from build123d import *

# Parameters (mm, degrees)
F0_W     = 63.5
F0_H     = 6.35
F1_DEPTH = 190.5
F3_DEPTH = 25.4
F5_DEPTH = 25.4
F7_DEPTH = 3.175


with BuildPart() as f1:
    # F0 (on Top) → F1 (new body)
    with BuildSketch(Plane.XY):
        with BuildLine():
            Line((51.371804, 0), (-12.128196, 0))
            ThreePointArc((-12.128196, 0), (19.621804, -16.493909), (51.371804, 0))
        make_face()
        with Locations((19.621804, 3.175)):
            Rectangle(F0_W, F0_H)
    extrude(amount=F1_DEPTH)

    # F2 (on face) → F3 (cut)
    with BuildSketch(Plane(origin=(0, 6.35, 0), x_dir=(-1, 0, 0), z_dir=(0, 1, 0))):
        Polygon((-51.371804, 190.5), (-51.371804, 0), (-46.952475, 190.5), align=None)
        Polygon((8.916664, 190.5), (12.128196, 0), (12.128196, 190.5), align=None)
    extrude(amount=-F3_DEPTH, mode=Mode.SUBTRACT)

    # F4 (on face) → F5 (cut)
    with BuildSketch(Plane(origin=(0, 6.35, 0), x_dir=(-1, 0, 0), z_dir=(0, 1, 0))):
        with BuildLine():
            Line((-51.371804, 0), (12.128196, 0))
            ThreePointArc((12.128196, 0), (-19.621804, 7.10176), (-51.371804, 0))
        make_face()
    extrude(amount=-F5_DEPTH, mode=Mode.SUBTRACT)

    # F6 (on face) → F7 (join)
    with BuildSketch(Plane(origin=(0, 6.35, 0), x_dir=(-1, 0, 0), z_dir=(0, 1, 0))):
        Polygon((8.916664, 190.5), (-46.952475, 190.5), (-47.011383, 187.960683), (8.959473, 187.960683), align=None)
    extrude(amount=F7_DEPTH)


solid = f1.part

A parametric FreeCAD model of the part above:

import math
import FreeCAD as App
import Part
import Sketcher

V = App.Vector
Q = App.Units.Quantity


def add_polygon(sketch, points):
    """Adds a closed chain of lines whose ends are joined by coincident constraints."""
    first, n = sketch.GeometryCount, len(points)
    for a, b in zip(points, points[1:] + points[:1]):
        sketch.addGeometry(Part.LineSegment(App.Vector(*a, 0), App.Vector(*b, 0)), False)
    for i in range(n):
        sketch.addConstraint(Sketcher.Constraint("Coincident", first + i, 2, first + (i + 1) % n, 1))

doc = App.newDocument("Part")
body = doc.addObject("PartDesign::Body", "Body")

# Sketch on XY plane
sketch1 = body.newObject("Sketcher::SketchObject", "Sketch")
sketch1.AttachmentSupport = (doc.getObject("XY_Plane"), [""])
sketch1.MapMode = "FlatFace"
sketch1.addGeometry([
    Part.ArcOfCircle(Part.Circle(V(20, 22, 0), V(0, 0, 1), 39), math.radians(-145), math.radians(-35)),
    Part.LineSegment(V(51, 0, 0), V(51, 6, 0)),
    Part.LineSegment(V(51, 6, 0), V(-12, 6, 0)),
    Part.LineSegment(V(-12, 6, 0), V(-12, 0, 0)),
], False)
sketch1.addConstraint([
    Sketcher.Constraint("Coincident", 0, 2, 1, 1),
    Sketcher.Constraint("Coincident", 1, 2, 2, 1),
    Sketcher.Constraint("Coincident", 2, 2, 3, 1),
    Sketcher.Constraint("Coincident", 3, 2, 0, 1),
    Sketcher.Constraint("Vertical", 1),
    Sketcher.Constraint("Horizontal", 2),
    Sketcher.Constraint("Vertical", 3),
    Sketcher.Constraint("PointOnObject", 0, 2, -1),
    Sketcher.Constraint("PointOnObject", 3, 2, -1),
    Sketcher.Constraint("DistanceX", 2, 2, 2, 1, Q("2.5 in")),
    Sketcher.Constraint("DistanceY", 1, 1, 1, 2, Q("0.25 in")),
    Sketcher.Constraint("Radius", 0, 38.805584),
    Sketcher.Constraint("DistanceX", -1, 1, 0, 3, 19.621804),
])
pad1 = body.newObject("PartDesign::Pad", "Pad")
pad1.Profile = sketch1
pad1.Length = Q("7.5 in")

# Sketch on XZ plane
sketch2 = body.newObject("Sketcher::SketchObject", "Sketch001")
sketch2.AttachmentSupport = (doc.getObject("XZ_Plane"), [""])
sketch2.MapMode = "FlatFace"
sketch2.AttachmentOffset = App.Placement(V(0, 0, -0.25 * 25.4), App.Rotation())
add_polygon(sketch2, [(51.4, 190.5), (51.4, 0), (47, 190.5)])  # lines 0-2
add_polygon(sketch2, [(-8.9, 190.5), (-12.1, 0), (-12.1, 190.5)])  # lines 3-5
sketch2.addConstraint([
    Sketcher.Constraint("Vertical", 0),
    Sketcher.Constraint("Horizontal", 2),
    Sketcher.Constraint("Vertical", 4),
    Sketcher.Constraint("Horizontal", 5),
    Sketcher.Constraint("PointOnObject", 0, 2, -1),
    Sketcher.Constraint("PointOnObject", 3, 2, -1),
    Sketcher.Constraint("Horizontal", 2, 2, 4, 2),
    Sketcher.Constraint("DistanceY", 0, 2, 0, 1, Q("7.5 in")),
    Sketcher.Constraint("DistanceX", 3, 2, 0, 2, Q("2.5 in")),
    Sketcher.Constraint("DistanceX", 2, 1, 2, 2, 4.419329),
    Sketcher.Constraint("DistanceX", 5, 1, 5, 2, 3.211532),
    Sketcher.Constraint("DistanceX", -1, 1, 0, 2, 51.371804),
])
pocket1 = body.newObject("PartDesign::Pocket", "Pocket")
pocket1.Profile = sketch2
pocket1.Length = Q("1 in")
pocket1.Reversed = True

# Sketch on XZ plane
sketch3 = body.newObject("Sketcher::SketchObject", "Sketch002")
sketch3.AttachmentSupport = (doc.getObject("XZ_Plane"), [""])
sketch3.MapMode = "FlatFace"
sketch3.AttachmentOffset = App.Placement(V(0, 0, -0.25 * 25.4), App.Rotation())
sketch3.addGeometry([
    Part.LineSegment(V(51, 0, 0), V(-12, 0, 0)),
    Part.ArcOfCircle(Part.Circle(V(20, -67, 0), V(0, 0, 1), 75), math.radians(65), math.radians(115)),
], False)
sketch3.addConstraint([
    Sketcher.Constraint("Coincident", 0, 1, 1, 1),
    Sketcher.Constraint("Coincident", 1, 2, 0, 2),
    Sketcher.Constraint("Horizontal", 0),
    Sketcher.Constraint("PointOnObject", 0, 1, -1),
    Sketcher.Constraint("DistanceX", 0, 2, 0, 1, Q("2.5 in")),
    Sketcher.Constraint("Radius", 1, Q("2.9340001 in")),
    Sketcher.Constraint("DistanceX", -1, 1, 1, 3, 19.621804),
])
pocket2 = body.newObject("PartDesign::Pocket", "Pocket001")
pocket2.Profile = sketch3
pocket2.Length = Q("1 in")
pocket2.Reversed = True

# Sketch on XZ plane
sketch4 = body.newObject("Sketcher::SketchObject", "Sketch003")
sketch4.AttachmentSupport = (doc.getObject("XZ_Plane"), [""])
sketch4.MapMode = "FlatFace"
sketch4.AttachmentOffset = App.Placement(V(0, 0, -0.25 * 25.4), App.Rotation())
add_polygon(sketch4, [(-8.9, 190.5), (47, 190.5), (47, 188), (-9, 188)])  # lines 0-3
sketch4.addConstraint([
    Sketcher.Constraint("Horizontal", 0),
    Sketcher.Constraint("Horizontal", 2),
    Sketcher.Constraint("Distance", 1, Q("0.1 in")),
    Sketcher.Constraint("DistanceY", -1, 1, 0, 2, Q("7.5 in")),
    Sketcher.Constraint("DistanceX", 0, 1, 0, 2, 55.869139),
    Sketcher.Constraint("DistanceX", 2, 2, 2, 1, 55.970856),
    Sketcher.Constraint("DistanceX", 0, 2, 1, 2, 0.058908),
    Sketcher.Constraint("DistanceX", -1, 1, 0, 2, 46.952475),
])
pad2 = body.newObject("PartDesign::Pad", "Pad001")
pad2.Profile = sketch4
pad2.Length = Q("0.125 in")
pad2.Reversed = True

doc.recompute()
